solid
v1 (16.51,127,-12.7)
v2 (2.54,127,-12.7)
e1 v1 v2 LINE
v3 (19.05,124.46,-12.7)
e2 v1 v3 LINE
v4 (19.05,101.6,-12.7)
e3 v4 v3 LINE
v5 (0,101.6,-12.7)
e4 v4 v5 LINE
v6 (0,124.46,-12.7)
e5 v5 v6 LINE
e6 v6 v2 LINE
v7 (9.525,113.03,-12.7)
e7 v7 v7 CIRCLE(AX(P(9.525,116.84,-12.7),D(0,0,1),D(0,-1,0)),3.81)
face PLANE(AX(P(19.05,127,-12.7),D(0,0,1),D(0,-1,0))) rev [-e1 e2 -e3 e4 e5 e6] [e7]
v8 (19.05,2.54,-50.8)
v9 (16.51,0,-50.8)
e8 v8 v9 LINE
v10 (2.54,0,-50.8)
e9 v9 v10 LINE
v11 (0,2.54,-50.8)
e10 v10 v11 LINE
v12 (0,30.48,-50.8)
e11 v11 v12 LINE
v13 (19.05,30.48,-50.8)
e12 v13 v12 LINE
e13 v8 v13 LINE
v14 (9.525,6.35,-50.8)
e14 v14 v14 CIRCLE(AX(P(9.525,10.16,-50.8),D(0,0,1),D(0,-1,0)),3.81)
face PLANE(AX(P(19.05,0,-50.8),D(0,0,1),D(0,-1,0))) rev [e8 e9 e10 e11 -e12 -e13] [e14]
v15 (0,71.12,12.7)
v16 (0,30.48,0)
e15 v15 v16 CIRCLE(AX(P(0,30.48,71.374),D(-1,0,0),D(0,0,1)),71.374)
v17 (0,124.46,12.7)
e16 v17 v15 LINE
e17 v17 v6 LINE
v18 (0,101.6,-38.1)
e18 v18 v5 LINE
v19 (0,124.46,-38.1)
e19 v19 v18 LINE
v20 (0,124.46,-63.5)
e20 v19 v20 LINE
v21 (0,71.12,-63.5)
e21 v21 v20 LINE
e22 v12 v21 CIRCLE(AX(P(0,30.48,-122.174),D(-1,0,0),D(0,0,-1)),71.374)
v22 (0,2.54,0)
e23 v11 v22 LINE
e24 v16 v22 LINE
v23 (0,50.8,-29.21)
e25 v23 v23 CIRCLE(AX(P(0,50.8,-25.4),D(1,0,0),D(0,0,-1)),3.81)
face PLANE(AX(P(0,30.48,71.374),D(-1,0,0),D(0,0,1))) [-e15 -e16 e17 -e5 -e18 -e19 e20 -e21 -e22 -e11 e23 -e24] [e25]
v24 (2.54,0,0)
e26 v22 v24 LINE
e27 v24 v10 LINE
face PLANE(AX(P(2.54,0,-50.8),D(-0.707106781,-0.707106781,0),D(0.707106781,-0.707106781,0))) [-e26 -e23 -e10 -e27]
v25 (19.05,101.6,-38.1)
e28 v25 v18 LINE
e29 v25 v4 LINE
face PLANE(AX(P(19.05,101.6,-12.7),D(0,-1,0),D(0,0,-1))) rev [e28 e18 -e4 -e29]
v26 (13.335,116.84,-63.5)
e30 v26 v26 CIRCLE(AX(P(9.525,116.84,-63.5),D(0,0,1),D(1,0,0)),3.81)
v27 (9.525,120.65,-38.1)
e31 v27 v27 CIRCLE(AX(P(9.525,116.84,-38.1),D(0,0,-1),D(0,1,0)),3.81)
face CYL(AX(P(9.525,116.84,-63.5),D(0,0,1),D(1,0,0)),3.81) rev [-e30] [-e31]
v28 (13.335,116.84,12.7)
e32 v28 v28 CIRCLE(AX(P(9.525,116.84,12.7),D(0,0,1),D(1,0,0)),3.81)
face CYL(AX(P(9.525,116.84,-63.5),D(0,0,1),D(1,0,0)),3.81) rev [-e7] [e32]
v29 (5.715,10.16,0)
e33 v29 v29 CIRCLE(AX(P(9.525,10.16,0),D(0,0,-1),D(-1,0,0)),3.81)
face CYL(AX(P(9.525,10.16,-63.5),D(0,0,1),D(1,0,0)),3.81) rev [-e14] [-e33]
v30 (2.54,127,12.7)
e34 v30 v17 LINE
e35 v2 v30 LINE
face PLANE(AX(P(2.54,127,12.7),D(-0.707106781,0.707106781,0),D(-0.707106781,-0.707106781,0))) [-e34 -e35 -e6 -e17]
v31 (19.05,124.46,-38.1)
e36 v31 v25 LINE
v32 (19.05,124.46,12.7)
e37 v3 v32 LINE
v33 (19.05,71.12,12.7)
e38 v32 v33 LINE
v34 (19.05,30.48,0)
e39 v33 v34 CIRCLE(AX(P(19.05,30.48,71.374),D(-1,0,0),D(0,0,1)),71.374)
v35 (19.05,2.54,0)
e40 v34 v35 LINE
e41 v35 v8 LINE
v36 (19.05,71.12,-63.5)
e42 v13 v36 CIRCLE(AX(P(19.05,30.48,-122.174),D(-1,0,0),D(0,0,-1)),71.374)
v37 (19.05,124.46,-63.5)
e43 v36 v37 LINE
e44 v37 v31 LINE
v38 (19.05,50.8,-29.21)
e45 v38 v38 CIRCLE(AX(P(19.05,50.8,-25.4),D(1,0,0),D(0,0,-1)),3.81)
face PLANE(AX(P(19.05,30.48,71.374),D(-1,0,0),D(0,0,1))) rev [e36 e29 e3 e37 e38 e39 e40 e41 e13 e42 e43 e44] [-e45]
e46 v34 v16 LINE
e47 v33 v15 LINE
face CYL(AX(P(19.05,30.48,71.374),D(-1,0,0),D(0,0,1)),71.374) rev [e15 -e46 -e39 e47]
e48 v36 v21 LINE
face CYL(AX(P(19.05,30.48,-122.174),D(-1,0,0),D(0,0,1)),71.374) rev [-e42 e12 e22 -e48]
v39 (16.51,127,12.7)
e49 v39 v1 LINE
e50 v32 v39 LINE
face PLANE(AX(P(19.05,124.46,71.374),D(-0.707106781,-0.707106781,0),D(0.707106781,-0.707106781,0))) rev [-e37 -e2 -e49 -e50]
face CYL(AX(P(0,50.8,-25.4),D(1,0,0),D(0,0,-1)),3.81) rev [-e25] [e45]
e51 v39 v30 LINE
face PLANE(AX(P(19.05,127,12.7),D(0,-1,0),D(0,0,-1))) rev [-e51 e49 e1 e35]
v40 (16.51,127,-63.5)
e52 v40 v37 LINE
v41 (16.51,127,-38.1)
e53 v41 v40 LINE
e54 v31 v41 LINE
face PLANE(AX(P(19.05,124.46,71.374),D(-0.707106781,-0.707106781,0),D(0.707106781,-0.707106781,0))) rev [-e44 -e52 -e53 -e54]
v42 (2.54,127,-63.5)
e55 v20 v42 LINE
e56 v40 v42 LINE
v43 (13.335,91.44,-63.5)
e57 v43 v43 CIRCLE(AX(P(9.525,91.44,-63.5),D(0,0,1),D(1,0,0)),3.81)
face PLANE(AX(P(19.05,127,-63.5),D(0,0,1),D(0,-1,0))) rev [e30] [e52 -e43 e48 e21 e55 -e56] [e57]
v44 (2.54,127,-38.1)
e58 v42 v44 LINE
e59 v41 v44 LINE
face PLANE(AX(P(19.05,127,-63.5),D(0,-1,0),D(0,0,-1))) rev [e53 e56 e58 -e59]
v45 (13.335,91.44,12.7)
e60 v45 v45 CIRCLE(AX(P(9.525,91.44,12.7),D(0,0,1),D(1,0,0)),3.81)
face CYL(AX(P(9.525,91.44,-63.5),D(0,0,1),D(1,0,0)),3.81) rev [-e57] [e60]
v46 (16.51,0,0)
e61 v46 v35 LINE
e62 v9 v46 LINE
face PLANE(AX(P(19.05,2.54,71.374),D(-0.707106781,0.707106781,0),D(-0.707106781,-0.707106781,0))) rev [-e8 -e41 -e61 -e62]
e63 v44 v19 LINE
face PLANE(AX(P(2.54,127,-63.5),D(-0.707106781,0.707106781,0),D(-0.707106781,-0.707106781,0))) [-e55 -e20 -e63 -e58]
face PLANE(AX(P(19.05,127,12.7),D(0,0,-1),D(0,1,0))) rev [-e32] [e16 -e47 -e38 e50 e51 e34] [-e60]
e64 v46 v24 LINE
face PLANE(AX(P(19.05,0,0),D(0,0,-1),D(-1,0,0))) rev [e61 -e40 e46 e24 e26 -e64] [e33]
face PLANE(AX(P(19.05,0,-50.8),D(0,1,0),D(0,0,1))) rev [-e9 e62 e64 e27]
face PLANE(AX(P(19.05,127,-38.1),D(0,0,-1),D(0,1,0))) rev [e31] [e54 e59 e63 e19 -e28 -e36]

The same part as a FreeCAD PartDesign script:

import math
import FreeCAD as App
import Part
import Sketcher
from FreeCAD import Vector
Q = App.Units.Quantity


def edges_at(feature, points):
    """Names of the edges that pass closest to the given points."""
    edges = feature.Shape.Edges
    near = lambda p: min(range(len(edges)), key=lambda i: edges[i].distToShape(Part.Vertex(*p))[0])
    return sorted({f"Edge{near(p) + 1}" for p in points})

doc = App.newDocument("Part")
params = doc.addObject("Spreadsheet::Sheet", "Params")
for row, (alias, value) in enumerate([
    ("sketch1_width", "1 in"),
    ("sketch1_height", "2 in"),
    ("sketch1_radius", "2.81 in"),
    ("sketch1_width2", "1.2 in"),
    ("sketch1_width3", "2.2 in"),
    ("pad1_length", "0.75 in"),
    ("sketch2_diameter", "0.3 in"),
    ("sketch3_diameter", "0.3 in"),
    ("chamfer_size", "0.1 in"),
], start=1):
    params.set(f"A{row}", alias)
    params.set(f"B{row}", "=" + value)
    params.setAlias(f"B{row}", alias)

body = doc.addObject("PartDesign::Body", "Body")

sketch1 = body.newObject("Sketcher::SketchObject", "Sketch")
sketch1.AttachmentSupport = (doc.getObject("YZ_Plane"), [""])
sketch1.MapMode = "FlatFace"
sketch1.addGeometry([
    Part.LineSegment(Vector(0, -50.8, 0), Vector(30.48, -50.8, 0)),
    Part.ArcOfCircle(Part.Circle(Vector(30.48, -122.174, 0), Vector(0, 0, 1), 71.374), math.radians(55.291951), math.radians(90)),
    Part.LineSegment(Vector(71.12, -63.5, 0), Vector(127, -63.5, 0)),
    Part.LineSegment(Vector(127, -63.5, 0), Vector(127, -38.1, 0)),
    Part.LineSegment(Vector(127, -38.1, 0), Vector(101.6, -38.1, 0)),
    Part.LineSegment(Vector(101.6, -38.1, 0), Vector(101.6, -12.7, 0)),
    Part.LineSegment(Vector(101.6, -12.7, 0), Vector(127, -12.7, 0)),
    Part.LineSegment(Vector(127, -12.7, 0), Vector(127, 12.7, 0)),
    Part.LineSegment(Vector(127, 12.7, 0), Vector(71.12, 12.7, 0)),
    Part.ArcOfCircle(Part.Circle(Vector(30.48, 71.374, 0), Vector(0, 0, 1), 71.374), math.radians(-90), math.radians(-55.291951)),
    Part.LineSegment(Vector(30.48, 0, 0), Vector(0, 0, 0)),
    Part.LineSegment(Vector(0, 0, 0), Vector(0, -50.8, 0)),
], False)
sketch1.addConstraint([
    Sketcher.Constraint("Tangent", 0, 2, 1, 2),
    Sketcher.Constraint("Coincident", 1, 1, 2, 1),
    Sketcher.Constraint("Coincident", 2, 2, 3, 1),
    Sketcher.Constraint("Coincident", 3, 2, 4, 1),
    Sketcher.Constraint("Coincident", 4, 2, 5, 1),
    Sketcher.Constraint("Coincident", 5, 2, 6, 1),
    Sketcher.Constraint("Coincident", 6, 2, 7, 1),
    Sketcher.Constraint("Coincident", 7, 2, 8, 1),
    Sketcher.Constraint("Coincident", 8, 2, 9, 2),
    Sketcher.Constraint("Tangent", 9, 1, 10, 1),
    Sketcher.Constraint("Coincident", 10, 2, 11, 1),
    Sketcher.Constraint("Coincident", 11, 2, 0, 1),
    Sketcher.Constraint("Horizontal", 0),
    Sketcher.Constraint("Horizontal", 2),
    Sketcher.Constraint("Vertical", 3),
    Sketcher.Constraint("Horizontal", 4),
    Sketcher.Constraint("Vertical", 5),
    Sketcher.Constraint("Horizontal", 6),
    Sketcher.Constraint("Vertical", 7),
    Sketcher.Constraint("Horizontal", 8),
    Sketcher.Constraint("Horizontal", 10),
    Sketcher.Constraint("Vertical", 11),
    Sketcher.Constraint("Coincident", 10, 2, -1, 1),
    Sketcher.Constraint("Equal", 1, 9),
    Sketcher.Constraint("Vertical", 1, 3, 9, 3),
    Sketcher.Constraint("Vertical", 3, 2, 6, 2),
    Sketcher.Constraint("Vertical", 1, 1, 8, 2),
    Sketcher.Constraint("Equal", 6, 3),
    Sketcher.Constraint("Equal", 3, 5),
    Sketcher.Constraint("Equal", 5, 7),
    Sketcher.Constraint("DistanceX", 4, 2, 4, 1, Q("1 in")),
    Sketcher.Constraint("DistanceY", 11, 2, 11, 1, Q("2 in")),
    Sketcher.Constraint("Radius", 1, Q("2.81 in")),
    Sketcher.Constraint("DistanceX", 0, 1, 0, 2, Q("1.2 in")),
    Sketcher.Constraint("DistanceX", 2, 1, 2, 2, Q("2.2 in")),
])
sketch1.setExpression("Constraints[30]", "Params.sketch1_width")
sketch1.setExpression("Constraints[31]", "Params.sketch1_height")
sketch1.setExpression("Constraints[32]", "Params.sketch1_radius")
sketch1.setExpression("Constraints[33]", "Params.sketch1_width2")
sketch1.setExpression("Constraints[34]", "Params.sketch1_width3")
pad1 = body.newObject("PartDesign::Pad", "Pad")
pad1.Profile = sketch1
pad1.setExpression("Length", "Params.pad1_length")

sketch2 = body.newObject("Sketcher::SketchObject", "Sketch001")
sketch2.AttachmentSupport = (doc.getObject("XY_Plane"), [""])
sketch2.MapMode = "FlatFace"
sketch2.AttachmentOffset = App.Placement(Vector(0, 0, 0.5 * 25.4), App.Rotation())
sketch2.addGeometry([
    Part.Circle(Vector(9.525, 116.84, 0), Vector(0, 0, 1), 3.81),
    Part.Circle(Vector(9.525, 91.44, 0), Vector(0, 0, 1), 3.81),
    Part.Circle(Vector(9.525, 10.16, 0), Vector(0, 0, 1), 3.81),
], False)
sketch2.addConstraint([
    Sketcher.Constraint("Equal", 0, 1),
    Sketcher.Constraint("Equal", 1, 2),
    Sketcher.Constraint("Vertical", 0, 3, 1, 3),
    Sketcher.Constraint("Vertical", 1, 3, 2, 3),
    Sketcher.Constraint("Diameter", 0, Q("0.3 in")),
    Sketcher.Constraint("DistanceY", 1, 3, 0, 3, Q("1 in")),
    Sketcher.Constraint("DistanceY", -1, 1, 0, 3, Q("4.6 in")),
    Sketcher.Constraint("DistanceY", -1, 1, 2, 3, Q("0.4 in")),
    Sketcher.Constraint("DistanceX", -1, 1, 0, 3, Q("0.375 in")),
])
sketch2.setExpression("Constraints[4]", "Params.sketch2_diameter")
pocket1 = body.newObject("PartDesign::Pocket", "Pocket")
pocket1.Profile = sketch2
pocket1.Type = "ThroughAll"

sketch3 = body.newObject("Sketcher::SketchObject", "Sketch002")
sketch3.AttachmentSupport = (doc.getObject("YZ_Plane"), [""])
sketch3.MapMode = "FlatFace"
sketch3.AttachmentOffset = App.Placement(Vector(0, 0, 0.75 * 25.4), App.Rotation())
sketch3.addGeometry(Part.Circle(Vector(50.8, -25.4, 0), Vector(0, 0, 1), 3.81), False)
sketch3.addConstraint([
    Sketcher.Constraint("Diameter", 0, Q("0.3 in")),
    Sketcher.Constraint("DistanceX", -1, 1, 0, 3, Q("2 in")),
    Sketcher.Constraint("DistanceY", 0, 3, -1, 1, Q("1 in")),
])
sketch3.setExpression("Constraints[0]", "Params.sketch3_diameter")
pocket2 = body.newObject("PartDesign::Pocket", "Pocket001")
pocket2.Profile = sketch3
pocket2.Type = "ThroughAll"
doc.recompute()

chamfer = body.newObject("PartDesign::Chamfer", "Chamfer")
chamfer.Base = (pocket2, edges_at(pocket2, [
    (0, 127, 0),
    (0, 127, -50.8),
    (0, 0, -25.4),
    (19.05, 127, -50.8),
    (19.05, 127, 0),
    (19.05, 0, -25.4),
]))
chamfer.setExpression("Size", "Params.chamfer_size")

doc.recompute()
